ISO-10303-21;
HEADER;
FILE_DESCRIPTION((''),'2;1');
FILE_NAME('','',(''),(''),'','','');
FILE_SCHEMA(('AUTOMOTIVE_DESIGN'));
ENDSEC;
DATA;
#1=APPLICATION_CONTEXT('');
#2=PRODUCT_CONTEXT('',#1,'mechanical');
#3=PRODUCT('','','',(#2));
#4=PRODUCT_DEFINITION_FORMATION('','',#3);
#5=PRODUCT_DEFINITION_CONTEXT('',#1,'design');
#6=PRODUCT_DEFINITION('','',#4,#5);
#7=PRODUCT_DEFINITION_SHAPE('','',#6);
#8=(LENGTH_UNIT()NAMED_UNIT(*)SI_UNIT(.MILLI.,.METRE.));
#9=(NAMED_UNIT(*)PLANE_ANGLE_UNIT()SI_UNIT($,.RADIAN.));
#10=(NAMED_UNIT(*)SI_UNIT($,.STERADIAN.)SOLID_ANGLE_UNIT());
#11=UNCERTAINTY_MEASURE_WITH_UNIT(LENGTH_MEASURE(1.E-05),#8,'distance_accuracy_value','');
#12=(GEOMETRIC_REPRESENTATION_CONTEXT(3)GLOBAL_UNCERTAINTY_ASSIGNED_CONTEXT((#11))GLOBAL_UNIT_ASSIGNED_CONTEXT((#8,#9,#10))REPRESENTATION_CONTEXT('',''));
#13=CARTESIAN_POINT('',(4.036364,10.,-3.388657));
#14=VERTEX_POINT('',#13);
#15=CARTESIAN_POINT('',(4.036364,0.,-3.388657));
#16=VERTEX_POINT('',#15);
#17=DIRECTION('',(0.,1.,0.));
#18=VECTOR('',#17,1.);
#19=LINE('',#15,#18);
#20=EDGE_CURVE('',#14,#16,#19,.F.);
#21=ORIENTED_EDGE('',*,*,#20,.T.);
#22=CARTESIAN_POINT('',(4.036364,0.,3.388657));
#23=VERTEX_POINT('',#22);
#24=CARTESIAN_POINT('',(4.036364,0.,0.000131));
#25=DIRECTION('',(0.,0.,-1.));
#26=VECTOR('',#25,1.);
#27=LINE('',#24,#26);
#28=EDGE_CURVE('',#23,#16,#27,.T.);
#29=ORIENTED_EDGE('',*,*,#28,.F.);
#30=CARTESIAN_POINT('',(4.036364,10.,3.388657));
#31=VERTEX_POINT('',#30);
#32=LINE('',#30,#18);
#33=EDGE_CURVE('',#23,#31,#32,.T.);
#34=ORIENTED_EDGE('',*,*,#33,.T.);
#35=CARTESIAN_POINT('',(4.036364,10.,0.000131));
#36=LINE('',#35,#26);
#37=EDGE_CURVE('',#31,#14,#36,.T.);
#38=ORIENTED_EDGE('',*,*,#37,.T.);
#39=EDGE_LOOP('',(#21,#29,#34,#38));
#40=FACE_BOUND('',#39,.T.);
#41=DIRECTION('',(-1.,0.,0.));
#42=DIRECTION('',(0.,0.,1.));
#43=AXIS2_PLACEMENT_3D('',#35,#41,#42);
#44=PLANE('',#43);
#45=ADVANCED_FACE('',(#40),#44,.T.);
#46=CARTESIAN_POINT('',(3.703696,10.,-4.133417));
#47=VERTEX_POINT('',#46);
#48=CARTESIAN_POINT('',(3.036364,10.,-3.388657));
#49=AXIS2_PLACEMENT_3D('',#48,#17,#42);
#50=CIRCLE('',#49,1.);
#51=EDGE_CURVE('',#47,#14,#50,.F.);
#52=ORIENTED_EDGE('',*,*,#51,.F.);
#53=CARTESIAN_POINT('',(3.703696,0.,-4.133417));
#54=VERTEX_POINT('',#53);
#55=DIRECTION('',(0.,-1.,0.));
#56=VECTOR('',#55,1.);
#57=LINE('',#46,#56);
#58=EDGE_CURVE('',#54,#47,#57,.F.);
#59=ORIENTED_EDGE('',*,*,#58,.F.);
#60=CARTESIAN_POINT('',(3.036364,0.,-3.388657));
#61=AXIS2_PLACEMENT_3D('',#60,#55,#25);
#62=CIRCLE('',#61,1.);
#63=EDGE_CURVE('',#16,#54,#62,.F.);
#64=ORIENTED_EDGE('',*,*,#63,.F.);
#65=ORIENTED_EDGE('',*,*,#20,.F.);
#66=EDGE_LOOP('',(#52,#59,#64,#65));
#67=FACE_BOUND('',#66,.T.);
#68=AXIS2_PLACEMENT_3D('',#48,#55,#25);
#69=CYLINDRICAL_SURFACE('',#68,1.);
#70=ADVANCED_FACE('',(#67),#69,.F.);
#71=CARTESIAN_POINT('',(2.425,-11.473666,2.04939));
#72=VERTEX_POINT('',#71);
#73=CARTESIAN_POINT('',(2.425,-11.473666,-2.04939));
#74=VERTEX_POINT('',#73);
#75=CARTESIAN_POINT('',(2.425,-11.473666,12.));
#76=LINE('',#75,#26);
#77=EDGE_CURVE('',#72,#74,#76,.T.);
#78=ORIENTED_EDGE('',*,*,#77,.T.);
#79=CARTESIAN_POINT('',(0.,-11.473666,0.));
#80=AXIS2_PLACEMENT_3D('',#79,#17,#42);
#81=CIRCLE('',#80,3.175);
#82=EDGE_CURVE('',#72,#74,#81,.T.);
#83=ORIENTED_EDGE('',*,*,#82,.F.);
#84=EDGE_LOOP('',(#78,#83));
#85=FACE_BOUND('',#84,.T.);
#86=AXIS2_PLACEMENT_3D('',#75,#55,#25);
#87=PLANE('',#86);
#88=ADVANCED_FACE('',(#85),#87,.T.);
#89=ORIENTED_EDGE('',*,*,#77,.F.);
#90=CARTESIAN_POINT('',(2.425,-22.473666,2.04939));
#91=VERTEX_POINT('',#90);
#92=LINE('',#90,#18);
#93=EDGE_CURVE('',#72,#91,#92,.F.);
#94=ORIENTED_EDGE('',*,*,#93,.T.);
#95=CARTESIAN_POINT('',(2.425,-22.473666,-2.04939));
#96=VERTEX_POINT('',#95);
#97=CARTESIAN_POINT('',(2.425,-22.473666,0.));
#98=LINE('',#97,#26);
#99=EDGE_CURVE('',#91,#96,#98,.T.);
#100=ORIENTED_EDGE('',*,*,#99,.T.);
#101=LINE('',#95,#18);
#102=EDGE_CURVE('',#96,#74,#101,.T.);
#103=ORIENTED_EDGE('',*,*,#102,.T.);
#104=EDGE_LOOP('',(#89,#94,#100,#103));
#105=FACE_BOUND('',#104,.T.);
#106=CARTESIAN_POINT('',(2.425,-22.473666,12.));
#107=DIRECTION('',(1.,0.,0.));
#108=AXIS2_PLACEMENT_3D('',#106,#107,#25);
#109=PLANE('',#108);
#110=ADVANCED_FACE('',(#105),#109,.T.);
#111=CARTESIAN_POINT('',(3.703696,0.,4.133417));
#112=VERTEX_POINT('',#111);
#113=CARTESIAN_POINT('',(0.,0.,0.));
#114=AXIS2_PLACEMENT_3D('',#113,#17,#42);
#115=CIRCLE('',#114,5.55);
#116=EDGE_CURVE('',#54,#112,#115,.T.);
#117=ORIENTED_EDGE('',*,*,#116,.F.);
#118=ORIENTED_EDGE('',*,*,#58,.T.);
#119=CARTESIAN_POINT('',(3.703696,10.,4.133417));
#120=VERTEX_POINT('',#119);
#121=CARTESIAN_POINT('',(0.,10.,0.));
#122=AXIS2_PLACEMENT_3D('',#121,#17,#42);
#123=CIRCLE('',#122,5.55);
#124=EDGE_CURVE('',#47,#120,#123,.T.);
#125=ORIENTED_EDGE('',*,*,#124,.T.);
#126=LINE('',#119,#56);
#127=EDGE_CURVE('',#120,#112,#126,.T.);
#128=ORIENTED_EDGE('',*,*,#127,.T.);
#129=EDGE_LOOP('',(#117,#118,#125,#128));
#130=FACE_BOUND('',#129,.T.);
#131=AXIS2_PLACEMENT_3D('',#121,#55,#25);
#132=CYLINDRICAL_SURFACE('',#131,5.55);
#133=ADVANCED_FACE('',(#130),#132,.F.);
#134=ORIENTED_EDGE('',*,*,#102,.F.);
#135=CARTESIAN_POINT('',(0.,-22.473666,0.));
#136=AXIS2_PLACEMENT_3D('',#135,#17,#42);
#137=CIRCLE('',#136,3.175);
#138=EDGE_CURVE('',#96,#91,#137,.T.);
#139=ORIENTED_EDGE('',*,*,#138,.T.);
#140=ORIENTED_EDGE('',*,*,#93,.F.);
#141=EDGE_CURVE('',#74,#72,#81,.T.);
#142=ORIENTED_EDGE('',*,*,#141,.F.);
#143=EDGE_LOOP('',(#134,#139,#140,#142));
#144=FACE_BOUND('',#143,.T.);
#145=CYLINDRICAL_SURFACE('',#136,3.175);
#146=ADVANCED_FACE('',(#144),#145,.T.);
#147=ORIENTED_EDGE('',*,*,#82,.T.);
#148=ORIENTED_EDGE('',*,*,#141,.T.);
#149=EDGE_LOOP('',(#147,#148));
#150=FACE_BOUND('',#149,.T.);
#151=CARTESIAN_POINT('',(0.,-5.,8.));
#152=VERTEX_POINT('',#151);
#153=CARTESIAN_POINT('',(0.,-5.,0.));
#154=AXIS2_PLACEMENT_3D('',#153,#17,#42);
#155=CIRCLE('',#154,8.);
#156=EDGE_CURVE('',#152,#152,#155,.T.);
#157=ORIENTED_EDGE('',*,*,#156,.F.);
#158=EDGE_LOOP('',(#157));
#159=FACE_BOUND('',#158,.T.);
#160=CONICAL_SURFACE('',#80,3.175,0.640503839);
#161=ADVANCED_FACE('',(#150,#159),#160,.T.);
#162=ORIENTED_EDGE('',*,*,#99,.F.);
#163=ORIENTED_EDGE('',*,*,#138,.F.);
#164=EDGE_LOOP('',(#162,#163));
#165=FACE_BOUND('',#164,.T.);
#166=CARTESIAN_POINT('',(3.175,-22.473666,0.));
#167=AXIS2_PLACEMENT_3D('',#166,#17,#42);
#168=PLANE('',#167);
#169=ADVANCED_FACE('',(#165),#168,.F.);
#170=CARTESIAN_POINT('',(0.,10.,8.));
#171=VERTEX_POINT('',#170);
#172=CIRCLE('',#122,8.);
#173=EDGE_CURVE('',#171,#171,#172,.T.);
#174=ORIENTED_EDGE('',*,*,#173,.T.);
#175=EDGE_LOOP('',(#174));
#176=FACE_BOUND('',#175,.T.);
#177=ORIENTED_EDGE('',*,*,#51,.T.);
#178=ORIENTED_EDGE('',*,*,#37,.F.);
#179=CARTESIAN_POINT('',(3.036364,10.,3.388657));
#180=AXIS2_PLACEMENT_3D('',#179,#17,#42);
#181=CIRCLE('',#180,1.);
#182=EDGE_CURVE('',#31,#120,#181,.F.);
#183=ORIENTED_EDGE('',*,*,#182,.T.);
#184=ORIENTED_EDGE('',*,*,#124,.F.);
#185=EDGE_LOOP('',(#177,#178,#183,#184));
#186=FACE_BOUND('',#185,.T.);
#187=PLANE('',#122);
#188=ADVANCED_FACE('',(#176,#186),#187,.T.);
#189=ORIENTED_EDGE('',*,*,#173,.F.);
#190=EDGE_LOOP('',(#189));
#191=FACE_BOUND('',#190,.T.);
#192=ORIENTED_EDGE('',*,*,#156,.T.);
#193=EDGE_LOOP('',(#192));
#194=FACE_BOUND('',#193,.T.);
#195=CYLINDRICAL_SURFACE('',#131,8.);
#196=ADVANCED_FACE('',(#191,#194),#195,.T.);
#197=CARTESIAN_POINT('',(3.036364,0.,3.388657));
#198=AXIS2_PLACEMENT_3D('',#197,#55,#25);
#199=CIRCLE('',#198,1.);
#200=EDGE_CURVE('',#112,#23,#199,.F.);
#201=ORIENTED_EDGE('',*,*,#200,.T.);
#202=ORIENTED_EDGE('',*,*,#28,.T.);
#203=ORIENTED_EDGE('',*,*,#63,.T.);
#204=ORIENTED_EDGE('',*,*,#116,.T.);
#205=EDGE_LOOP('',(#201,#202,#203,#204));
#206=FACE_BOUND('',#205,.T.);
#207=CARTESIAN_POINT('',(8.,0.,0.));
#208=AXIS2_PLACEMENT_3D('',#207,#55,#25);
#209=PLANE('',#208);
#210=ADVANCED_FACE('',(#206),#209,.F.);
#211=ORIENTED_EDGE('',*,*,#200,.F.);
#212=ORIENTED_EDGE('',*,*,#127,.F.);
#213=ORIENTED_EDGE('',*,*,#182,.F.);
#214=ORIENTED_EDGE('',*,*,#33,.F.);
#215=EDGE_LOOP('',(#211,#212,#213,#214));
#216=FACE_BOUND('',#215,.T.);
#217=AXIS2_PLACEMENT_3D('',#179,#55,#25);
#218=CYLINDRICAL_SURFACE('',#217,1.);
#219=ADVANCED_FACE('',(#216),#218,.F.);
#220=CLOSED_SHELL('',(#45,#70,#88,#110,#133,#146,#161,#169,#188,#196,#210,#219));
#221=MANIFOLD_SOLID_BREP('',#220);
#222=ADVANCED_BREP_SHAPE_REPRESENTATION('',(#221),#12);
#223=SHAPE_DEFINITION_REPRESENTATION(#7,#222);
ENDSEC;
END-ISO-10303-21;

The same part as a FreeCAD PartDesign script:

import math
import FreeCAD as App
import Part
import Sketcher


def edges_at(feature, points):
    """Names of the edges that pass closest to the given points."""
    edges = feature.Shape.Edges
    near = lambda p: min(range(len(edges)), key=lambda i: edges[i].distToShape(Part.Vertex(*p))[0])
    return sorted({f"Edge{near(p) + 1}" for p in points})

doc = App.newDocument("Part")
body = doc.addObject("PartDesign::Body", "Body")

# Sketch on XZ plane
sketch1 = doc.addObject("Sketcher::SketchObject", "Sketch")
body.addObject(sketch1)
sketch1.AttachmentSupport = (doc.XZ_Plane, [""])
sketch1.MapMode = "FlatFace"
sketch1.addGeometry(Part.Circle(App.Vector(0, 0, 0), App.Vector(0, 0, 1), 8), False)
sketch1.addGeometry(Part.ArcOfCircle(Part.Circle(App.Vector(0, 0, 0), App.Vector(0, 0, 1), 6), math.radians(43), math.radians(317)), False)
sketch1.addGeometry(Part.LineSegment(App.Vector(4, -4, 0), App.Vector(4, 4, 0)), False)
sketch1.addConstraint(Sketcher.Constraint("Coincident", 1, 1, 2, 2))
sketch1.addConstraint(Sketcher.Constraint("Coincident", 2, 1, 1, 2))
sketch1.addConstraint(Sketcher.Constraint("Vertical", 2))
sketch1.addConstraint(Sketcher.Constraint("Coincident", 0, 3, -1, 1))
sketch1.addConstraint(Sketcher.Constraint("Coincident", 1, 3, -1, 1))
sketch1.addConstraint(Sketcher.Constraint("Diameter", 0, 16.0))
sketch1.addConstraint(Sketcher.Constraint("Radius", 1, 5.55))
sketch1.addConstraint(Sketcher.Constraint("DistanceY", 2, 1, 2, 2, 7.618469))
pad1 = doc.addObject("PartDesign::Pad", "Pad")
body.addObject(pad1)
pad1.Profile = sketch1
pad1.Length = 10
pad1.Reversed = True

# Sketch on XY plane
sketch2 = doc.addObject("Sketcher::SketchObject", "Sketch001")
body.addObject(sketch2)
sketch2.AttachmentSupport = (doc.XY_Plane, [""])
sketch2.MapMode = "FlatFace"
sketch2.addGeometry(Part.LineSegment(App.Vector(8, -5, 0), App.Vector(8, 0, 0)), False)
sketch2.addGeometry(Part.LineSegment(App.Vector(8, 0, 0), App.Vector(0, 0, 0)), False)
sketch2.addGeometry(Part.LineSegment(App.Vector(0, 0, 0), App.Vector(0, -22.5, 0)), False)
sketch2.addGeometry(Part.LineSegment(App.Vector(0, -22.5, 0), App.Vector(3.2, -22.5, 0)), False)
sketch2.addGeometry(Part.LineSegment(App.Vector(3.2, -22.5, 0), App.Vector(3.2, -11.5, 0)), False)
sketch2.addGeometry(Part.LineSegment(App.Vector(3.2, -11.5, 0), App.Vector(8, -5, 0)), False)
sketch2.addConstraint(Sketcher.Constraint("Coincident", 0, 2, 1, 1))
sketch2.addConstraint(Sketcher.Constraint("Coincident", 1, 2, 2, 1))
sketch2.addConstraint(Sketcher.Constraint("Coincident", 2, 2, 3, 1))
sketch2.addConstraint(Sketcher.Constraint("Coincident", 3, 2, 4, 1))
sketch2.addConstraint(Sketcher.Constraint("Coincident", 4, 2, 5, 1))
sketch2.addConstraint(Sketcher.Constraint("Coincident", 5, 2, 0, 1))
sketch2.addConstraint(Sketcher.Constraint("Vertical", 0))
sketch2.addConstraint(Sketcher.Constraint("Horizontal", 1))
sketch2.addConstraint(Sketcher.Constraint("Vertical", 2))
sketch2.addConstraint(Sketcher.Constraint("Horizontal", 3))
sketch2.addConstraint(Sketcher.Constraint("Vertical", 4))
sketch2.addConstraint(Sketcher.Constraint("Coincident", 1, 2, -1, 1))
sketch2.addConstraint(Sketcher.Constraint("DistanceX", 1, 2, 1, 1, 8.0))
sketch2.addConstraint(Sketcher.Constraint("DistanceY", 0, 1, 0, 2, 5.0))
sketch2.addConstraint(Sketcher.Constraint("DistanceY", 4, 1, 4, 2, 11.0))
sketch2.addConstraint(Sketcher.Constraint("DistanceX", 3, 1, 3, 2, 3.175))
sketch2.addConstraint(Sketcher.Constraint("Distance", 5, 8.073969))
revolution = doc.addObject("PartDesign::Revolution", "Revolution")
body.addObject(revolution)
revolution.Profile = sketch2
revolution.ReferenceAxis = (sketch2, ["V_Axis"])
revolution.Angle = 360

# Sketch on XY plane
sketch3 = doc.addObject("Sketcher::SketchObject", "Sketch002")
body.addObject(sketch3)
sketch3.AttachmentSupport = (doc.XY_Plane, [""])
sketch3.MapMode = "FlatFace"
sketch3.addGeometry(Part.LineSegment(App.Vector(2.4, -11.5, 0), App.Vector(2.4, -22.5, 0)), False)
sketch3.addGeometry(Part.LineSegment(App.Vector(2.4, -22.5, 0), App.Vector(3.2, -22.5, 0)), False)
sketch3.addGeometry(Part.LineSegment(App.Vector(3.2, -22.5, 0), App.Vector(3.2, -11.5, 0)), False)
sketch3.addGeometry(Part.LineSegment(App.Vector(3.2, -11.5, 0), App.Vector(2.4, -11.5, 0)), False)
sketch3.addConstraint(Sketcher.Constraint("Coincident", 0, 2, 1, 1))
sketch3.addConstraint(Sketcher.Constraint("Coincident", 1, 2, 2, 1))
sketch3.addConstraint(Sketcher.Constraint("Coincident", 2, 2, 3, 1))
sketch3.addConstraint(Sketcher.Constraint("Coincident", 3, 2, 0, 1))
sketch3.addConstraint(Sketcher.Constraint("Vertical", 0))
sketch3.addConstraint(Sketcher.Constraint("Horizontal", 1))
sketch3.addConstraint(Sketcher.Constraint("Vertical", 2))
sketch3.addConstraint(Sketcher.Constraint("Horizontal", 3))
sketch3.addConstraint(Sketcher.Constraint("DistanceY", 0, 2, 0, 1, 11.0))
sketch3.addConstraint(Sketcher.Constraint("DistanceX", 1, 1, 1, 2, 0.75))
sketch3.addConstraint(Sketcher.Constraint("DistanceX", -1, 1, 0, 2, 2.425))
sketch3.addConstraint(Sketcher.Constraint("DistanceY", 0, 2, -1, 1, 22.473666))
pocket1 = doc.addObject("PartDesign::Pocket", "Pocket")
body.addObject(pocket1)
pocket1.Profile = sketch3
pocket1.Type = "ThroughAll"
pocket1.Midplane = True
doc.recompute()

fillet = doc.addObject("PartDesign::Fillet", "Fillet")
body.addObject(fillet)
fillet.Base = (pocket1, edges_at(pocket1, [(4.036, 5, -3.809)]))
fillet.Radius = 1
doc.recompute()

fillet2 = doc.addObject("PartDesign::Fillet", "Fillet001")
body.addObject(fillet2)
fillet2.Base = (fillet, edges_at(fillet, [(4.036, 5, 3.809)]))
fillet2.Radius = 1

doc.recompute()
